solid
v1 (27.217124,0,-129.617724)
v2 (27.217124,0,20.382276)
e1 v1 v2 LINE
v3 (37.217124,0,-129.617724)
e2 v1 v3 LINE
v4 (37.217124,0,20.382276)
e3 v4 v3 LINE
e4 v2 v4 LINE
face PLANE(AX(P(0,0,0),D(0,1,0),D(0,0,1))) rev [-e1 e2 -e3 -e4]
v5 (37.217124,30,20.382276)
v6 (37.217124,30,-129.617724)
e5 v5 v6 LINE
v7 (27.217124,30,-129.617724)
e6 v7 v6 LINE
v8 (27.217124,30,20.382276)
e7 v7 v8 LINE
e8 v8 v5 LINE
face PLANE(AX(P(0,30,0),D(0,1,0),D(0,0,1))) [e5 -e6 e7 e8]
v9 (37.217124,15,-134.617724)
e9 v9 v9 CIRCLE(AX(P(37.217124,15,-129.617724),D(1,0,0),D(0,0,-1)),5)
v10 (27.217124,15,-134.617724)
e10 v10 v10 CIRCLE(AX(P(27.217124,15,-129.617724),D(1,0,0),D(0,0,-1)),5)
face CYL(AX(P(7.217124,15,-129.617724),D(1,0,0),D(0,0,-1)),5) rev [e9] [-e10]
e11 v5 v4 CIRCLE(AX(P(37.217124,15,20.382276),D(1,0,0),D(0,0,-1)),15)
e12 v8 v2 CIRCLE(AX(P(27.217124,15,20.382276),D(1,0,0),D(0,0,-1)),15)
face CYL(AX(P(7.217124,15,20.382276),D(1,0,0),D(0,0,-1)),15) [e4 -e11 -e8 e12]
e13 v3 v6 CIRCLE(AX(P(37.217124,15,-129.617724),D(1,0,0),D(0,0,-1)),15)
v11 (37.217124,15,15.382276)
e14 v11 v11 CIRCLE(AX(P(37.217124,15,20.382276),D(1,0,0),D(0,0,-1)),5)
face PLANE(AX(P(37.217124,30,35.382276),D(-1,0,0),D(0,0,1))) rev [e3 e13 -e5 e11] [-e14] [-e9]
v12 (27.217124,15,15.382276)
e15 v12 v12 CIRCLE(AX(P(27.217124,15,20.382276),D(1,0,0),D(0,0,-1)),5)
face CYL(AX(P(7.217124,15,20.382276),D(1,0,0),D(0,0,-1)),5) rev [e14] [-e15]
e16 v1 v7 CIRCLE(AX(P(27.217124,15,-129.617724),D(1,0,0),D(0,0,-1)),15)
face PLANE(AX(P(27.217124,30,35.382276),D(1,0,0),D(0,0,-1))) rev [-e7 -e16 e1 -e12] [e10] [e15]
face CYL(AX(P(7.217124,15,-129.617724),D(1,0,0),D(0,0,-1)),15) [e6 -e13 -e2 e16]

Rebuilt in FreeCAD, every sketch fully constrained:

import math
import FreeCAD as App
import Part
import Sketcher
from FreeCAD import Vector
Q = App.Units.Quantity

doc = App.newDocument("Part")
body = doc.addObject("PartDesign::Body", "Body")

sketch1 = body.newObject("Sketcher::SketchObject", "Sketch")
sketch1.AttachmentSupport = (doc.getObject("XZ_Plane"), [""])
sketch1.MapMode = "FlatFace"
sketch1.addGeometry(Part.LineSegment(Vector(27, -145, 0), Vector(27, 35, 0)), False)
sketch1.addGeometry(Part.LineSegment(Vector(27, 35, 0), Vector(37, 35, 0)), False)
sketch1.addGeometry(Part.LineSegment(Vector(37, 35, 0), Vector(37, -145, 0)), False)
sketch1.addGeometry(Part.LineSegment(Vector(37, -145, 0), Vector(27, -145, 0)), False)
sketch1.addConstraint(Sketcher.Constraint("Coincident", 0, 2, 1, 1))
sketch1.addConstraint(Sketcher.Constraint("Coincident", 1, 2, 2, 1))
sketch1.addConstraint(Sketcher.Constraint("Coincident", 2, 2, 3, 1))
sketch1.addConstraint(Sketcher.Constraint("Coincident", 3, 2, 0, 1))
sketch1.addConstraint(Sketcher.Constraint("Vertical", 0))
sketch1.addConstraint(Sketcher.Constraint("Horizontal", 1))
sketch1.addConstraint(Sketcher.Constraint("Vertical", 2))
sketch1.addConstraint(Sketcher.Constraint("Horizontal", 3))
sketch1.addConstraint(Sketcher.Constraint("DistanceX", 1, 1, 1, 2, Q("10 mm")))
sketch1.addConstraint(Sketcher.Constraint("DistanceY", 0, 1, 0, 2, Q("180 mm")))
sketch1.addConstraint(Sketcher.Constraint("DistanceX", -1, 1, 0, 2, Q("27.217124 mm")))
sketch1.addConstraint(Sketcher.Constraint("DistanceY", -1, 1, 0, 2, Q("35.382276 mm")))
pad1 = body.newObject("PartDesign::Pad", "Pad")
pad1.Profile = sketch1
pad1.Length = 30
pad1.Reversed = True

sketch2 = body.newObject("Sketcher::SketchObject", "Sketch001")
sketch2.AttachmentSupport = (doc.getObject("YZ_Plane"), [""])
sketch2.MapMode = "FlatFace"
sketch2.AttachmentOffset = App.Placement(Vector(0, 0, 37.217124), App.Rotation())
sketch2.addGeometry(Part.ArcOfCircle(Part.Circle(Vector(15, -130, 0), Vector(0, 0, 1), 15), math.radians(-90), math.radians(0)), False)
sketch2.addGeometry(Part.LineSegment(Vector(15, -145, 0), Vector(30, -145, 0)), False)
sketch2.addGeometry(Part.LineSegment(Vector(30, -145, 0), Vector(30, -130, 0)), False)
sketch2.addGeometry(Part.LineSegment(Vector(0, -130, 0), Vector(0, -145, 0)), False)
sketch2.addGeometry(Part.LineSegment(Vector(0, -145, 0), Vector(15, -145, 0)), False)
sketch2.addGeometry(Part.ArcOfCircle(Part.Circle(Vector(15, -130, 0), Vector(0, 0, 1), 15), math.radians(180), math.radians(270)), False)
sketch2.addGeometry(Part.LineSegment(Vector(0, 35, 0), Vector(0, 20, 0)), False)
sketch2.addGeometry(Part.ArcOfCircle(Part.Circle(Vector(15, 20, 0), Vector(0, 0, 1), 15), math.radians(90), math.radians(180)), False)
sketch2.addGeometry(Part.LineSegment(Vector(15, 35, 0), Vector(0, 35, 0)), False)
sketch2.addGeometry(Part.ArcOfCircle(Part.Circle(Vector(15, 20, 0), Vector(0, 0, 1), 15), math.radians(0), math.radians(90)), False)
sketch2.addGeometry(Part.LineSegment(Vector(30, 20, 0), Vector(30, 35, 0)), False)
sketch2.addGeometry(Part.LineSegment(Vector(30, 35, 0), Vector(15, 35, 0)), False)
sketch2.addGeometry(Part.Circle(Vector(15, -130, 0), Vector(0, 0, 1), 5), False)
sketch2.addGeometry(Part.Circle(Vector(15, 20, 0), Vector(0, 0, 1), 5), False)
sketch2.addConstraint(Sketcher.Constraint("Tangent", 0, 1, 1, 1))
sketch2.addConstraint(Sketcher.Constraint("Coincident", 1, 2, 2, 1))
sketch2.addConstraint(Sketcher.Constraint("Tangent", 2, 2, 0, 2))
sketch2.addConstraint(Sketcher.Constraint("Coincident", 3, 2, 4, 1))
sketch2.addConstraint(Sketcher.Constraint("Tangent", 4, 2, 5, 2))
sketch2.addConstraint(Sketcher.Constraint("Tangent", 5, 1, 3, 1))
sketch2.addConstraint(Sketcher.Constraint("Tangent", 6, 2, 7, 2))
sketch2.addConstraint(Sketcher.Constraint("Tangent", 7, 1, 8, 1))
sketch2.addConstraint(Sketcher.Constraint("Coincident", 8, 2, 6, 1))
sketch2.addConstraint(Sketcher.Constraint("Tangent", 9, 1, 10, 1))
sketch2.addConstraint(Sketcher.Constraint("Coincident", 10, 2, 11, 1))
sketch2.addConstraint(Sketcher.Constraint("Tangent", 11, 2, 9, 2))
sketch2.addConstraint(Sketcher.Constraint("Horizontal", 1))
sketch2.addConstraint(Sketcher.Constraint("Vertical", 2))
sketch2.addConstraint(Sketcher.Constraint("Vertical", 3))
sketch2.addConstraint(Sketcher.Constraint("Horizontal", 4))
sketch2.addConstraint(Sketcher.Constraint("Vertical", 6))
sketch2.addConstraint(Sketcher.Constraint("Horizontal", 8))
sketch2.addConstraint(Sketcher.Constraint("Vertical", 10))
sketch2.addConstraint(Sketcher.Constraint("Horizontal", 11))
sketch2.addConstraint(Sketcher.Constraint("Coincident", 5, 3, 0, 3))
sketch2.addConstraint(Sketcher.Constraint("Coincident", 9, 3, 7, 3))
sketch2.addConstraint(Sketcher.Constraint("Coincident", 12, 3, 0, 3))
sketch2.addConstraint(Sketcher.Constraint("Coincident", 13, 3, 7, 3))
sketch2.addConstraint(Sketcher.Constraint("Equal", 0, 5))
sketch2.addConstraint(Sketcher.Constraint("Equal", 5, 7))
sketch2.addConstraint(Sketcher.Constraint("Equal", 7, 9))
sketch2.addConstraint(Sketcher.Constraint("Equal", 12, 13))
sketch2.addConstraint(Sketcher.Constraint("PointOnObject", 3, 2, -2))
sketch2.addConstraint(Sketcher.Constraint("PointOnObject", 6, 2, -2))
sketch2.addConstraint(Sketcher.Constraint("Diameter", 12, Q("10 mm")))
sketch2.addConstraint(Sketcher.Constraint("Radius", 0, Q("15 mm")))
sketch2.addConstraint(Sketcher.Constraint("DistanceY", 0, 3, 7, 3, Q("150 mm")))
sketch2.addConstraint(Sketcher.Constraint("DistanceY", 0, 3, -1, 1, Q("129.617724 mm")))
pocket1 = body.newObject("PartDesign::Pocket", "Pocket")
pocket1.Profile = sketch2
pocket1.Length = 30

doc.recompute()
